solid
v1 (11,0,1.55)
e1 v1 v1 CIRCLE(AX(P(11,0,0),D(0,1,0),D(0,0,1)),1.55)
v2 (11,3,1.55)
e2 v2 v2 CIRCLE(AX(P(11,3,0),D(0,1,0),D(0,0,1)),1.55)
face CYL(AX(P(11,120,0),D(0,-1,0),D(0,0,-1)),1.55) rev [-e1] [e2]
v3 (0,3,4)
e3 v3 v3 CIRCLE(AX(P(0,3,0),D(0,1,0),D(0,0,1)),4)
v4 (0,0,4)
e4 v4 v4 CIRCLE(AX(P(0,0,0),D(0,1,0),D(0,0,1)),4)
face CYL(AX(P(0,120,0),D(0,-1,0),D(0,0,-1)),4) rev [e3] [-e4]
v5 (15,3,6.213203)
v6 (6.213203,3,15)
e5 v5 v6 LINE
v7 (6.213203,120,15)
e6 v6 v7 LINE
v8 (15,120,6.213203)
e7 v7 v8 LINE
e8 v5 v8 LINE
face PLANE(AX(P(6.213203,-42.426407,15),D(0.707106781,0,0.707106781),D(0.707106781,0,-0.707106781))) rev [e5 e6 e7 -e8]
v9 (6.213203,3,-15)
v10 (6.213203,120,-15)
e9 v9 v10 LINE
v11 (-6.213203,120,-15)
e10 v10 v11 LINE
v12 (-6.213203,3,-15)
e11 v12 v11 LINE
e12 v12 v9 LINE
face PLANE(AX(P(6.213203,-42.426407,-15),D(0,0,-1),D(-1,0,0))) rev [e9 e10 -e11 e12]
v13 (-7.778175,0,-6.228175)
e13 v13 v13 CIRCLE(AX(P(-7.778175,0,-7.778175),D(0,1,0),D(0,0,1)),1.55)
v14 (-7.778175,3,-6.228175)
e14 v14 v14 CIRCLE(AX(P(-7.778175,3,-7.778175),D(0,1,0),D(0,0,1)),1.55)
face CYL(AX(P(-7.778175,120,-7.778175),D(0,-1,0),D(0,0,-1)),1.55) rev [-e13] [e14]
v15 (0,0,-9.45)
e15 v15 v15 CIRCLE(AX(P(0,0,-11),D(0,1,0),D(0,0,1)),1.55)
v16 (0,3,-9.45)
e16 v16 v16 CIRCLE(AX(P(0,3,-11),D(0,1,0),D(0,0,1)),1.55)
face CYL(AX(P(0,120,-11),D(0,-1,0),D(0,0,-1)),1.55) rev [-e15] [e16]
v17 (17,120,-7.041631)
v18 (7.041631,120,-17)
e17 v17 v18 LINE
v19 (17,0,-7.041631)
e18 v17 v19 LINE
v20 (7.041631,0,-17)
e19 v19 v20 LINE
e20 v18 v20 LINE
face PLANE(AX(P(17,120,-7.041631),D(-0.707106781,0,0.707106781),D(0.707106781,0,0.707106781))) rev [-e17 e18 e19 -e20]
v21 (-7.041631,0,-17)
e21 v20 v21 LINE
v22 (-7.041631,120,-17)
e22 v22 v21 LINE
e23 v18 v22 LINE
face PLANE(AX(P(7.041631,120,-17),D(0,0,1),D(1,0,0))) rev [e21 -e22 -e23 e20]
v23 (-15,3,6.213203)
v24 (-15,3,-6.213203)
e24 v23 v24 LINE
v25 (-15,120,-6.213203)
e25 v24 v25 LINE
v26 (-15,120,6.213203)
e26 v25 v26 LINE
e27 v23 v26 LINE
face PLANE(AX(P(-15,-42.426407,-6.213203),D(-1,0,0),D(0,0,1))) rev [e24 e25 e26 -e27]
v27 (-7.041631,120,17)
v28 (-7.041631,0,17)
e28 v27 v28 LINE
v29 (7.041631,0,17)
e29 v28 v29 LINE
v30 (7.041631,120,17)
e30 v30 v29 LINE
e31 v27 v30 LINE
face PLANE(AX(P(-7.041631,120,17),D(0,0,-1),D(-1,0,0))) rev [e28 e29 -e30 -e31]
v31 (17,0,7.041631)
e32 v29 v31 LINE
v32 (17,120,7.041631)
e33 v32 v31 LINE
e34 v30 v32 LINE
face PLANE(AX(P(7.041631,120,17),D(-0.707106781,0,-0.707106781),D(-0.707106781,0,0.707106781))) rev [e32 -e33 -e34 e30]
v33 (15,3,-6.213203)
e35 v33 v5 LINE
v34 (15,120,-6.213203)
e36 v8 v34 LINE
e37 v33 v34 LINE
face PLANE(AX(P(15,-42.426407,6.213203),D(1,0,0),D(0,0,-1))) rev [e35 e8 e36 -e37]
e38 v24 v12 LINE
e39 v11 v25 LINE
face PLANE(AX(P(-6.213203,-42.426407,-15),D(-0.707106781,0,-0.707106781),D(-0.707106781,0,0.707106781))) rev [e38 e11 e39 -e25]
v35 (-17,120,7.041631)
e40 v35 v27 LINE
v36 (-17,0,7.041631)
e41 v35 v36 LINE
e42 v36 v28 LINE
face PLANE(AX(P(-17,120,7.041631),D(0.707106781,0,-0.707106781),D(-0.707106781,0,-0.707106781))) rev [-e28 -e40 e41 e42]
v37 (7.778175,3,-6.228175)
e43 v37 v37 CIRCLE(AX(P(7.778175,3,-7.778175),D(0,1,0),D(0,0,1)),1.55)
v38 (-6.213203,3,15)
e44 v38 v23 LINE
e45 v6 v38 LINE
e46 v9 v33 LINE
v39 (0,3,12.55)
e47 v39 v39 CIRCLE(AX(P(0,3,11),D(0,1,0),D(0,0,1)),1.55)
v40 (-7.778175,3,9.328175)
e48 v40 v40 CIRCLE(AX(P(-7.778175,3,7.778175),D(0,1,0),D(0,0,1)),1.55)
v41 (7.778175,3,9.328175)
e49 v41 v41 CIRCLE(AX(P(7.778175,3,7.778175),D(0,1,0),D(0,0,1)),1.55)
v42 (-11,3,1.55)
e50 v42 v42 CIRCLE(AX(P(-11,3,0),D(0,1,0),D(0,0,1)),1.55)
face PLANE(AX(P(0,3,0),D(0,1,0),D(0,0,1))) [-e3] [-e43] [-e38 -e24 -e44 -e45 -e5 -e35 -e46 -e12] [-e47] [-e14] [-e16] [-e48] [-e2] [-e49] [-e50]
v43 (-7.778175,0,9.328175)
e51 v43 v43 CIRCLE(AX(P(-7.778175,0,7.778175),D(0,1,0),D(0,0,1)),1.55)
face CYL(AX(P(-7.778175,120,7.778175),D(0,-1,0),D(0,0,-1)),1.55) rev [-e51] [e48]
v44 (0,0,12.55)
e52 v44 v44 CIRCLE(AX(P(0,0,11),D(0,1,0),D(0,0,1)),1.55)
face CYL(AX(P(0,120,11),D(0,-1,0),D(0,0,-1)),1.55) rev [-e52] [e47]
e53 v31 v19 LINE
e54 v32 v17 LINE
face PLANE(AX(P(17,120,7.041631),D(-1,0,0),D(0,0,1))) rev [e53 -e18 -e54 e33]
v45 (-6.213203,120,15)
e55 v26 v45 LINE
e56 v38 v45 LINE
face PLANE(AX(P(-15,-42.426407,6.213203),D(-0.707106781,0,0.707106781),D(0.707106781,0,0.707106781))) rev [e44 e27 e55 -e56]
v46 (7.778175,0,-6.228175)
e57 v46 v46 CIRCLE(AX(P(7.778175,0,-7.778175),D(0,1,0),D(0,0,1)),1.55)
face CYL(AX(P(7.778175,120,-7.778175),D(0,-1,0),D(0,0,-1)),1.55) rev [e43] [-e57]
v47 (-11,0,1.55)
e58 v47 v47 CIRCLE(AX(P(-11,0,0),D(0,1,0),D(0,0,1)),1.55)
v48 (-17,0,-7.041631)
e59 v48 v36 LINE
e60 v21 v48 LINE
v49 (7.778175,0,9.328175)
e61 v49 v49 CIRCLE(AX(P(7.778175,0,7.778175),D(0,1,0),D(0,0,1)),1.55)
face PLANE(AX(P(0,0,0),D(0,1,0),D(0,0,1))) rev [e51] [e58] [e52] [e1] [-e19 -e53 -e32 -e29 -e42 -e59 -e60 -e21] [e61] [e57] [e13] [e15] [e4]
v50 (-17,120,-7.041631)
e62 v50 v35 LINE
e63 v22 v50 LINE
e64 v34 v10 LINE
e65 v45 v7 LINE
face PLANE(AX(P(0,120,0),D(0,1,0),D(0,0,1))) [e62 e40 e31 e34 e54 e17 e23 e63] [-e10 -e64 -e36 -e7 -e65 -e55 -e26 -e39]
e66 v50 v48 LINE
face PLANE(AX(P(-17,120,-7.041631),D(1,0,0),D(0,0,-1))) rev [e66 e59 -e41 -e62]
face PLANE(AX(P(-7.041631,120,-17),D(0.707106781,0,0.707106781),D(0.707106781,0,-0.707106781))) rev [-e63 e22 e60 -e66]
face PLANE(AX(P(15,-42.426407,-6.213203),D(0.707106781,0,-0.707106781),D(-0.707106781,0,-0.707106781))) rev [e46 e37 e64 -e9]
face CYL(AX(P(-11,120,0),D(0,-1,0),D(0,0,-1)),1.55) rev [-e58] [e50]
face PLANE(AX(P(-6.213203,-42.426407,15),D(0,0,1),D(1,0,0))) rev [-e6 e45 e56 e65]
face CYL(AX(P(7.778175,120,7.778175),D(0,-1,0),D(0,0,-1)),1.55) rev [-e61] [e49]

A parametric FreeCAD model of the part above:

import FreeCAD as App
import Part
import Sketcher
from FreeCAD import Vector
Q = App.Units.Quantity

doc = App.newDocument("Part")
body = doc.addObject("PartDesign::Body", "Body")

sketch1 = doc.addObject("Sketcher::SketchObject", "Sketch")
body.addObject(sketch1)
sketch1.AttachmentSupport = (doc.XZ_Plane, [""])
sketch1.MapMode = "FlatFace"
sketch1.addGeometry([
    Part.LineSegment(Vector(17, 7.041631, 0), Vector(17, -7.041631, 0)),
    Part.LineSegment(Vector(17, -7.041631, 0), Vector(7.041631, -17, 0)),
    Part.LineSegment(Vector(7.041631, -17, 0), Vector(-7.041631, -17, 0)),
    Part.LineSegment(Vector(-7.041631, -17, 0), Vector(-17, -7.041631, 0)),
    Part.LineSegment(Vector(-17, -7.041631, 0), Vector(-17, 7.041631, 0)),
    Part.LineSegment(Vector(-17, 7.041631, 0), Vector(-7.041631, 17, 0)),
    Part.LineSegment(Vector(-7.041631, 17, 0), Vector(7.041631, 17, 0)),
    Part.LineSegment(Vector(7.041631, 17, 0), Vector(17, 7.041631, 0)),
    Part.Circle(Vector(-7.778175, 7.778175, 0), Vector(0, 0, 1), 1.55),
    Part.Circle(Vector(0, 11, 0), Vector(0, 0, 1), 1.55),
    Part.Circle(Vector(7.778175, 7.778175, 0), Vector(0, 0, 1), 1.55),
    Part.Circle(Vector(-11, 0, 0), Vector(0, 0, 1), 1.55),
    Part.Circle(Vector(-7.778175, -7.778175, 0), Vector(0, 0, 1), 1.55),
    Part.Circle(Vector(0, 0, 0), Vector(0, 0, 1), 4),
    Part.Circle(Vector(11, 0, 0), Vector(0, 0, 1), 1.55),
    Part.Circle(Vector(0, -11, 0), Vector(0, 0, 1), 1.55),
    Part.Circle(Vector(7.778175, -7.778175, 0), Vector(0, 0, 1), 1.55),
], False)
sketch1.addConstraint([
    Sketcher.Constraint("Coincident", 0, 2, 1, 1),
    Sketcher.Constraint("Coincident", 1, 2, 2, 1),
    Sketcher.Constraint("Coincident", 2, 2, 3, 1),
    Sketcher.Constraint("Coincident", 3, 2, 4, 1),
    Sketcher.Constraint("Coincident", 4, 2, 5, 1),
    Sketcher.Constraint("Coincident", 5, 2, 6, 1),
    Sketcher.Constraint("Coincident", 6, 2, 7, 1),
    Sketcher.Constraint("Coincident", 7, 2, 0, 1),
    Sketcher.Constraint("Vertical", 0),
    Sketcher.Constraint("Horizontal", 2),
    Sketcher.Constraint("Vertical", 4),
    Sketcher.Constraint("Horizontal", 6),
    Sketcher.Constraint("Coincident", 13, 3, -1, 1),
    Sketcher.Constraint("Equal", 8, 9),
    Sketcher.Constraint("Equal", 9, 10),
    Sketcher.Constraint("Equal", 10, 11),
    Sketcher.Constraint("Equal", 11, 12),
    Sketcher.Constraint("Equal", 12, 14),
    Sketcher.Constraint("Equal", 14, 15),
    Sketcher.Constraint("Equal", 15, 16),
    Sketcher.Constraint("Symmetric", 10, 3, 12, 3, -1, 1),
    Sketcher.Constraint("Symmetric", 11, 3, 14, 3, -1, 1),
    Sketcher.Constraint("Symmetric", 9, 3, 15, 3, -1, 1),
    Sketcher.Constraint("Symmetric", 8, 3, 16, 3, -1, 1),
    Sketcher.Constraint("Symmetric", 0, 2, 4, 2, -1, 1),
    Sketcher.Constraint("Symmetric", 1, 2, 5, 2, -1, 1),
    Sketcher.Constraint("Symmetric", 8, 3, 10, 3, -2),
    Sketcher.Constraint("PointOnObject", 9, 3, -2),
    Sketcher.Constraint("PointOnObject", 11, 3, -1),
    Sketcher.Constraint("Perpendicular", 1, 3),
    Sketcher.Constraint("Perpendicular", 5, 7),
    Sketcher.Constraint("Horizontal", 0, 2, 3, 2),
    Sketcher.Constraint("Horizontal", 4, 2, 7, 2),
    Sketcher.Constraint("Vertical", 2, 2, 5, 2),
    Sketcher.Constraint("Equal", 6, 0),
    Sketcher.Constraint("Diameter", 13, Q("8 mm")),
    Sketcher.Constraint("Diameter", 8, Q("3.1 mm")),
    Sketcher.Constraint("DistanceY", -1, 1, 9, 3, Q("11 mm")),
    Sketcher.Constraint("DistanceX", 11, 3, -1, 1, Q("11 mm")),
    Sketcher.Constraint("DistanceX", -1, 1, 0, 2, Q("17 mm")),
    Sketcher.Constraint("DistanceX", 2, 2, 2, 1, Q("14.083261 mm")),
    Sketcher.Constraint("DistanceX", 8, 3, 10, 3, Q("15.556349 mm")),
    Sketcher.Constraint("DistanceY", 12, 3, 8, 3, Q("15.556349 mm")),
])
pad1 = doc.addObject("PartDesign::Pad", "Pad")
body.addObject(pad1)
pad1.Profile = sketch1
pad1.Length = 120
pad1.Reversed = True

sketch2 = doc.addObject("Sketcher::SketchObject", "Sketch001")
body.addObject(sketch2)
sketch2.AttachmentSupport = (doc.XZ_Plane, [""])
sketch2.MapMode = "FlatFace"
sketch2.AttachmentOffset = App.Placement(Vector(0, 0, -120), App.Rotation())
sketch2.addGeometry([
    Part.LineSegment(Vector(6.213203, -15, 0), Vector(-6.213203, -15, 0)),
    Part.LineSegment(Vector(-6.213203, -15, 0), Vector(-15, -6.213203, 0)),
    Part.LineSegment(Vector(-15, -6.213203, 0), Vector(-15, 6.213203, 0)),
    Part.LineSegment(Vector(-15, 6.213203, 0), Vector(-6.213203, 15, 0)),
    Part.LineSegment(Vector(-6.213203, 15, 0), Vector(6.213203, 15, 0)),
    Part.LineSegment(Vector(6.213203, 15, 0), Vector(15, 6.213203, 0)),
    Part.LineSegment(Vector(15, 6.213203, 0), Vector(15, -6.213203, 0)),
    Part.LineSegment(Vector(15, -6.213203, 0), Vector(6.213203, -15, 0)),
], False)
sketch2.addConstraint([
    Sketcher.Constraint("Coincident", 0, 2, 1, 1),
    Sketcher.Constraint("Coincident", 1, 2, 2, 1),
    Sketcher.Constraint("Coincident", 2, 2, 3, 1),
    Sketcher.Constraint("Coincident", 3, 2, 4, 1),
    Sketcher.Constraint("Coincident", 4, 2, 5, 1),
    Sketcher.Constraint("Coincident", 5, 2, 6, 1),
    Sketcher.Constraint("Coincident", 6, 2, 7, 1),
    Sketcher.Constraint("Coincident", 7, 2, 0, 1),
    Sketcher.Constraint("Horizontal", 0),
    Sketcher.Constraint("Vertical", 2),
    Sketcher.Constraint("Horizontal", 4),
    Sketcher.Constraint("Vertical", 6),
    Sketcher.Constraint("Symmetric", 0, 2, 4, 2, -1, 1),
    Sketcher.Constraint("Symmetric", 1, 2, 5, 2, -1, 1),
    Sketcher.Constraint("Perpendicular", 1, 3),
    Sketcher.Constraint("Perpendicular", 5, 7),
    Sketcher.Constraint("Horizontal", 2, 2, 5, 2),
    Sketcher.Constraint("Horizontal", 1, 2, 6, 2),
    Sketcher.Constraint("Vertical", 0, 2, 3, 2),
    Sketcher.Constraint("Equal", 4, 2),
    Sketcher.Constraint("DistanceY", 0, 2, -1, 1, Q("15 mm")),
    Sketcher.Constraint("DistanceX", 0, 2, 0, 1, Q("12.426407 mm")),
])
pocket1 = doc.addObject("PartDesign::Pocket", "Pocket")
body.addObject(pocket1)
pocket1.Profile = sketch2
pocket1.Length = 117
pocket1.Reversed = True

doc.recompute()
